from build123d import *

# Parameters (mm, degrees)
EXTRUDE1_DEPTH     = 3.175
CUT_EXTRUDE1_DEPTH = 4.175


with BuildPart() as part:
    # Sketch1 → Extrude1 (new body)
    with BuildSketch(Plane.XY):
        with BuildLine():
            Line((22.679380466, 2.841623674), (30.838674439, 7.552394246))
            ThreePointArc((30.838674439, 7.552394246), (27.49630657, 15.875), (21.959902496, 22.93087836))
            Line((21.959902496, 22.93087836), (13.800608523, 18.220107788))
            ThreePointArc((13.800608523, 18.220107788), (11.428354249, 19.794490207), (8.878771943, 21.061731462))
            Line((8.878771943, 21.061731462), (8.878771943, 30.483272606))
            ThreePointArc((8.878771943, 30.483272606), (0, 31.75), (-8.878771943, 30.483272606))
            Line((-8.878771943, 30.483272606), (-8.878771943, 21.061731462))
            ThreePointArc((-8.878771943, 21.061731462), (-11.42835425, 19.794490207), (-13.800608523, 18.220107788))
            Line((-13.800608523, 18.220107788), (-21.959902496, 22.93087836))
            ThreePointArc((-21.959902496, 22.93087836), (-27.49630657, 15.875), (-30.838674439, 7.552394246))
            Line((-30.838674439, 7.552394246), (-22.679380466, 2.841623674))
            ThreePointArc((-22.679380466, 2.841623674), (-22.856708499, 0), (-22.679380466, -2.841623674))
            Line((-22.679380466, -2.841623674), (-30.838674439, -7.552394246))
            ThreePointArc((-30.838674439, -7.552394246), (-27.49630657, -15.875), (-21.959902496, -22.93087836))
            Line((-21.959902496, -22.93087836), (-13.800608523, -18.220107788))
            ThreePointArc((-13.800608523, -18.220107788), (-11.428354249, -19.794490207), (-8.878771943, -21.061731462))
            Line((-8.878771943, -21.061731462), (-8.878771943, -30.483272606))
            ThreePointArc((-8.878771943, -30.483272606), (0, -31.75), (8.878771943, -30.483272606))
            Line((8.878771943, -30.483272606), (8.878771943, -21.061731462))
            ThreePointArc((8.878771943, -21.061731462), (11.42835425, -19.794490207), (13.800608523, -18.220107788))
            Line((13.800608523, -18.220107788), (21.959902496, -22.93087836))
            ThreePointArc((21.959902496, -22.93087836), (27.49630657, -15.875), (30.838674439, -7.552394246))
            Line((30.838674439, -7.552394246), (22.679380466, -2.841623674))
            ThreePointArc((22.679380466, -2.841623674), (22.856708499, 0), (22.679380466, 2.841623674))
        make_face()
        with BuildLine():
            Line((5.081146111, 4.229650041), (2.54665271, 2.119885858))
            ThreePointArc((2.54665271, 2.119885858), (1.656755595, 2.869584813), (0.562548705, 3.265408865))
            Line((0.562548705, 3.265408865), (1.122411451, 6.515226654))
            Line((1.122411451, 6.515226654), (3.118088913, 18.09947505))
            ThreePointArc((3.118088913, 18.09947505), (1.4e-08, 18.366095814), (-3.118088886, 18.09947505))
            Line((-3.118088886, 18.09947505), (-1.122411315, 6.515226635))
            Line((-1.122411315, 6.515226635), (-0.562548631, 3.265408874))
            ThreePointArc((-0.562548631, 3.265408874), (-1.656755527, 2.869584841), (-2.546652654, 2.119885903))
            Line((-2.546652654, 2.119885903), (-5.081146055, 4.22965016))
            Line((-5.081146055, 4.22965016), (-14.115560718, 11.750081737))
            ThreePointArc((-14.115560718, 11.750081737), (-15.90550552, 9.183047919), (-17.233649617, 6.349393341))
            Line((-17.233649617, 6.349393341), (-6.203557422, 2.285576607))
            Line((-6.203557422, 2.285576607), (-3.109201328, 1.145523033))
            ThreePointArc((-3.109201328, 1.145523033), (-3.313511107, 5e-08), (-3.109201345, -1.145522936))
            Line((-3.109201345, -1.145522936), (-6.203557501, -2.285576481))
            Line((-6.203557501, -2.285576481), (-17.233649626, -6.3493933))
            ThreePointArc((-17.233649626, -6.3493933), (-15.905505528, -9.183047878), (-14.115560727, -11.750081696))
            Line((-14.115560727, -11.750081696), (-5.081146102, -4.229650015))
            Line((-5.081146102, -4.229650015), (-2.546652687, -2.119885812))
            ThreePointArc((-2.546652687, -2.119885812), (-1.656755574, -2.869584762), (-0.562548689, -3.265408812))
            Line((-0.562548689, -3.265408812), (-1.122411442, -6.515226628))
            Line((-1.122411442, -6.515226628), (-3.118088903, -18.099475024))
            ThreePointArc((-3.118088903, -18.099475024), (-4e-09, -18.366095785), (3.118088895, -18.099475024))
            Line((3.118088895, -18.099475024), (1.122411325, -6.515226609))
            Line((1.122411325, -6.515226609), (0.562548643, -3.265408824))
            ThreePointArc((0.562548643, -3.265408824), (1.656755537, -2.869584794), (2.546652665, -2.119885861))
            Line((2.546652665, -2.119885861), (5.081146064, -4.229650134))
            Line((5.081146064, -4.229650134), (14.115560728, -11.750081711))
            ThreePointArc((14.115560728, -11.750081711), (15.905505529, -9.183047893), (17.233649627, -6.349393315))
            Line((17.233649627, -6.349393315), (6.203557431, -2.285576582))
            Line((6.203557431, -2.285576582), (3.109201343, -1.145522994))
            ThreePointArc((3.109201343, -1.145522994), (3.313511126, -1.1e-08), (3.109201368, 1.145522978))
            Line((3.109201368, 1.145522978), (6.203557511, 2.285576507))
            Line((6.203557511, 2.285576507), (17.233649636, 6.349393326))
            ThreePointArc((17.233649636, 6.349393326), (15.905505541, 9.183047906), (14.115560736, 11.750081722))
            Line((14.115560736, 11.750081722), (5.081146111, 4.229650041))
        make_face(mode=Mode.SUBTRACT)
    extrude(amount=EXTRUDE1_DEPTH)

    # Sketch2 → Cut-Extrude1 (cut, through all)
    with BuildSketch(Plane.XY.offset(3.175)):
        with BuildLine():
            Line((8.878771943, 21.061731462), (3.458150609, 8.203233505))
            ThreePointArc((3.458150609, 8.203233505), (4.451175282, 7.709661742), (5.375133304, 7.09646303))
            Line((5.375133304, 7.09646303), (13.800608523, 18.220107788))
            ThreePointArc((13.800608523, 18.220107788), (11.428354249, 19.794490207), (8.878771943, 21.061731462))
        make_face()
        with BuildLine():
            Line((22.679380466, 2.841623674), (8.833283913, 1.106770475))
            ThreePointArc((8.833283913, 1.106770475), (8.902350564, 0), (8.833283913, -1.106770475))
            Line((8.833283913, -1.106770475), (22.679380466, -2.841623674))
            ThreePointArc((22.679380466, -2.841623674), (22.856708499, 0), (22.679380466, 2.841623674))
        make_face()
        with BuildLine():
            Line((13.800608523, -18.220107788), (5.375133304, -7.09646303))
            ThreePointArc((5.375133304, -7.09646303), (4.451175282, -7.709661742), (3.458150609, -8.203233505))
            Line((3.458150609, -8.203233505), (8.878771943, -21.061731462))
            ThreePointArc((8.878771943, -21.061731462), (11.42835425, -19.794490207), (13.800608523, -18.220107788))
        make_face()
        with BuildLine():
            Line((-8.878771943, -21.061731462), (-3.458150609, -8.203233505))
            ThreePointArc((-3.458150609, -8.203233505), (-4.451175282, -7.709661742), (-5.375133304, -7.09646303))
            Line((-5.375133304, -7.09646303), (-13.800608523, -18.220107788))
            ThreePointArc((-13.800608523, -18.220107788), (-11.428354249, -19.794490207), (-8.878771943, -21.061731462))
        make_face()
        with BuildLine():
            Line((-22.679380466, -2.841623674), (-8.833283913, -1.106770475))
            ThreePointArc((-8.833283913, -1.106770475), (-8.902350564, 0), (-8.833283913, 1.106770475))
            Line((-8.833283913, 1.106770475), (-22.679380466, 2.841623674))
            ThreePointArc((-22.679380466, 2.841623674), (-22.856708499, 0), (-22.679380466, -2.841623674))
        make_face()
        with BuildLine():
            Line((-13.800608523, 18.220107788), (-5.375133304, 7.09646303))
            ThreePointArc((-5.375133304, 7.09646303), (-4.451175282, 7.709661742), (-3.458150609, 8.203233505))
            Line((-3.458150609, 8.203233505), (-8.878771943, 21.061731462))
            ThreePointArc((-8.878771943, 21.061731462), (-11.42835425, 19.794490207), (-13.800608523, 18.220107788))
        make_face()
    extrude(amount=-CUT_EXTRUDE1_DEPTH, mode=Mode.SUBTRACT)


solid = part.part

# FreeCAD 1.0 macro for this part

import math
import FreeCAD as App
import Part
import Sketcher

V = App.Vector
Q = App.Units.Quantity

doc = App.newDocument("Part")
body = doc.addObject("PartDesign::Body", "Body")

# Sketch on XY plane
sketch1 = body.newObject("Sketcher::SketchObject", "Sketch")
sketch1.AttachmentSupport = (doc.getObject("XY_Plane"), [""])
sketch1.MapMode = "FlatFace"
sketch1.addGeometry([
    Part.LineSegment(V(22.7, 2.8, 0), V(30.8, 7.6, 0)),  # 0
    Part.ArcOfCircle(Part.Circle(V(0, 0, 0), V(0, 0, 1), 31.8), math.radians(14), math.radians(46)),  # 1
    Part.LineSegment(V(22, 22.9, 0), V(13.8, 18.2, 0)),  # 2
    Part.ArcOfCircle(Part.Circle(V(0, 0, 0), V(0, 0, 1), 22.9), math.radians(52.86), math.radians(67.14)),  # 3
    Part.LineSegment(V(8.9, 21.1, 0), V(8.9, 30.5, 0)),  # 4
    Part.ArcOfCircle(Part.Circle(V(0, 0, 0), V(0, 0, 1), 31.7), math.radians(74), math.radians(106)),  # 5
    Part.LineSegment(V(-8.9, 30.5, 0), V(-8.9, 21.1, 0)),  # 6
    Part.ArcOfCircle(Part.Circle(V(0, 0, 0), V(0, 0, 1), 22.9), math.radians(112.86), math.radians(127.14)),  # 7
    Part.LineSegment(V(-13.8, 18.2, 0), V(-22, 22.9, 0)),  # 8
    Part.ArcOfCircle(Part.Circle(V(0, 0, 0), V(0, 0, 1), 31.8), math.radians(134), math.radians(166)),  # 9
    Part.LineSegment(V(-30.8, 7.6, 0), V(-22.7, 2.8, 0)),  # 10
    Part.ArcOfCircle(Part.Circle(V(0, 0, 0), V(0, 0, 1), 22.9), math.radians(172.86), math.radians(187.14)),  # 11
    Part.LineSegment(V(-22.7, -2.8, 0), V(-30.8, -7.6, 0)),  # 12
    Part.ArcOfCircle(Part.Circle(V(0, 0, 0), V(0, 0, 1), 31.8), math.radians(-166), math.radians(-134)),  # 13
    Part.LineSegment(V(-22, -22.9, 0), V(-13.8, -18.2, 0)),  # 14
    Part.ArcOfCircle(Part.Circle(V(0, 0, 0), V(0, 0, 1), 22.9), math.radians(-127.14), math.radians(-112.86)),  # 15
    Part.LineSegment(V(-8.9, -21.1, 0), V(-8.9, -30.5, 0)),  # 16
    Part.ArcOfCircle(Part.Circle(V(0, 0, 0), V(0, 0, 1), 31.7), math.radians(-106), math.radians(-74)),  # 17
    Part.LineSegment(V(8.9, -30.5, 0), V(8.9, -21.1, 0)),  # 18
    Part.ArcOfCircle(Part.Circle(V(0, 0, 0), V(0, 0, 1), 22.9), math.radians(-67.14), math.radians(-52.86)),  # 19
    Part.LineSegment(V(13.8, -18.2, 0), V(22, -22.9, 0)),  # 20
    Part.ArcOfCircle(Part.Circle(V(0, 0, 0), V(0, 0, 1), 31.8), math.radians(-46), math.radians(-14)),  # 21
    Part.LineSegment(V(30.8, -7.6, 0), V(22.7, -2.8, 0)),  # 22
    Part.ArcOfCircle(Part.Circle(V(0, 0, 0), V(0, 0, 1), 22.9), math.radians(-7.14), math.radians(7.14)),  # 23
    Part.LineSegment(V(2.5, 2.1, 0), V(5.1, 4.2, 0)),  # 24
    Part.LineSegment(V(5.1, 4.2, 0), V(14.1, 11.8, 0)),  # 25
    Part.ArcOfCircle(Part.Circle(V(0, 0, 0), V(0, 0, 1), 18.4), math.radians(20.23), math.radians(39.77)),  # 26
    Part.LineSegment(V(17.2, 6.3, 0), V(6.2, 2.3, 0)),  # 27
    Part.LineSegment(V(6.2, 2.3, 0), V(3.1, 1.1, 0)),  # 28
    Part.ArcOfCircle(Part.Circle(V(0, 0, 0), V(0, 0, 1), 3.3), math.radians(-20), math.radians(20)),  # 29
    Part.LineSegment(V(3.1, -1.1, 0), V(6.2, -2.3, 0)),  # 30
    Part.LineSegment(V(6.2, -2.3, 0), V(17.2, -6.3, 0)),  # 31
    Part.ArcOfCircle(Part.Circle(V(0, 0, 0), V(0, 0, 1), 18.4), math.radians(-39.77), math.radians(-20.23)),  # 32
    Part.LineSegment(V(14.1, -11.8, 0), V(5.1, -4.2, 0)),  # 33
    Part.LineSegment(V(5.1, -4.2, 0), V(2.5, -2.1, 0)),  # 34
    Part.ArcOfCircle(Part.Circle(V(0, 0, 0), V(0, 0, 1), 3.3), math.radians(-80), math.radians(-40)),  # 35
    Part.LineSegment(V(0.6, -3.3, 0), V(1.1, -6.5, 0)),  # 36
    Part.LineSegment(V(1.1, -6.5, 0), V(3.1, -18.1, 0)),  # 37
    Part.ArcOfCircle(Part.Circle(V(0, 0, 0), V(0, 0, 1), 18.4), math.radians(-99.77), math.radians(-80.23)),  # 38
    Part.LineSegment(V(-3.1, -18.1, 0), V(-1.1, -6.5, 0)),  # 39
    Part.LineSegment(V(-1.1, -6.5, 0), V(-0.6, -3.3, 0)),  # 40
    Part.ArcOfCircle(Part.Circle(V(0, 0, 0), V(0, 0, 1), 3.3), math.radians(-140), math.radians(-100)),  # 41
    Part.LineSegment(V(-2.5, -2.1, 0), V(-5.1, -4.2, 0)),  # 42
    Part.LineSegment(V(-5.1, -4.2, 0), V(-14.1, -11.8, 0)),  # 43
    Part.ArcOfCircle(Part.Circle(V(0, 0, 0), V(0, 0, 1), 18.4), math.radians(-159.77), math.radians(-140.23)),  # 44
    Part.LineSegment(V(-17.2, -6.3, 0), V(-6.2, -2.3, 0)),  # 45
    Part.LineSegment(V(-6.2, -2.3, 0), V(-3.1, -1.1, 0)),  # 46
    Part.ArcOfCircle(Part.Circle(V(0, 0, 0), V(0, 0, 1), 3.3), math.radians(160), math.radians(200)),  # 47
    Part.LineSegment(V(-3.1, 1.1, 0), V(-6.2, 2.3, 0)),  # 48
    Part.LineSegment(V(-6.2, 2.3, 0), V(-17.2, 6.3, 0)),  # 49
    Part.ArcOfCircle(Part.Circle(V(0, 0, 0), V(0, 0, 1), 18.4), math.radians(140.23), math.radians(159.77)),  # 50
    Part.LineSegment(V(-14.1, 11.8, 0), V(-5.1, 4.2, 0)),  # 51
    Part.LineSegment(V(-5.1, 4.2, 0), V(-2.5, 2.1, 0)),  # 52
    Part.ArcOfCircle(Part.Circle(V(0, 0, 0), V(0, 0, 1), 3.3), math.radians(100), math.radians(140)),  # 53
    Part.LineSegment(V(-0.6, 3.3, 0), V(-1.1, 6.5, 0)),  # 54
    Part.LineSegment(V(-1.1, 6.5, 0), V(-3.1, 18.1, 0)),  # 55
    Part.ArcOfCircle(Part.Circle(V(0, 0, 0), V(0, 0, 1), 18.4), math.radians(80.23), math.radians(99.77)),  # 56
    Part.LineSegment(V(3.1, 18.1, 0), V(1.1, 6.5, 0)),  # 57
    Part.LineSegment(V(1.1, 6.5, 0), V(0.6, 3.3, 0)),  # 58
    Part.ArcOfCircle(Part.Circle(V(0, 0, 0), V(0, 0, 1), 3.3), math.radians(40), math.radians(80)),  # 59
], False)
sketch1.addConstraint([
    Sketcher.Constraint("Coincident", 0, 2, 1, 1),
    Sketcher.Constraint("Coincident", 1, 2, 2, 1),
    Sketcher.Constraint("Coincident", 2, 2, 3, 1),
    Sketcher.Constraint("Coincident", 3, 2, 4, 1),
    Sketcher.Constraint("Coincident", 4, 2, 5, 1),
    Sketcher.Constraint("Coincident", 5, 2, 6, 1),
    Sketcher.Constraint("Coincident", 6, 2, 7, 1),
    Sketcher.Constraint("Coincident", 7, 2, 8, 1),
    Sketcher.Constraint("Coincident", 8, 2, 9, 1),
    Sketcher.Constraint("Coincident", 9, 2, 10, 1),
    Sketcher.Constraint("Coincident", 10, 2, 11, 1),
    Sketcher.Constraint("Coincident", 11, 2, 12, 1),
    Sketcher.Constraint("Coincident", 12, 2, 13, 1),
    Sketcher.Constraint("Coincident", 13, 2, 14, 1),
    Sketcher.Constraint("Coincident", 14, 2, 15, 1),
    Sketcher.Constraint("Coincident", 15, 2, 16, 1),
    Sketcher.Constraint("Coincident", 16, 2, 17, 1),
    Sketcher.Constraint("Coincident", 17, 2, 18, 1),
    Sketcher.Constraint("Coincident", 18, 2, 19, 1),
    Sketcher.Constraint("Coincident", 19, 2, 20, 1),
    Sketcher.Constraint("Coincident", 20, 2, 21, 1),
    Sketcher.Constraint("Coincident", 21, 2, 22, 1),
    Sketcher.Constraint("Coincident", 22, 2, 23, 1),
    Sketcher.Constraint("Coincident", 23, 2, 0, 1),
    Sketcher.Constraint("Coincident", 24, 2, 25, 1),
    Sketcher.Constraint("Coincident", 25, 2, 26, 2),
    Sketcher.Constraint("Coincident", 26, 1, 27, 1),
    Sketcher.Constraint("Coincident", 27, 2, 28, 1),
    Sketcher.Constraint("Coincident", 28, 2, 29, 2),
    Sketcher.Constraint("Coincident", 29, 1, 30, 1),
    Sketcher.Constraint("Coincident", 30, 2, 31, 1),
    Sketcher.Constraint("Coincident", 31, 2, 32, 2),
    Sketcher.Constraint("Coincident", 32, 1, 33, 1),
    Sketcher.Constraint("Coincident", 33, 2, 34, 1),
    Sketcher.Constraint("Coincident", 34, 2, 35, 2),
    Sketcher.Constraint("Coincident", 35, 1, 36, 1),
    Sketcher.Constraint("Coincident", 36, 2, 37, 1),
    Sketcher.Constraint("Coincident", 37, 2, 38, 2),
    Sketcher.Constraint("Coincident", 38, 1, 39, 1),
    Sketcher.Constraint("Coincident", 39, 2, 40, 1),
    Sketcher.Constraint("Coincident", 40, 2, 41, 2),
    Sketcher.Constraint("Coincident", 41, 1, 42, 1),
    Sketcher.Constraint("Coincident", 42, 2, 43, 1),
    Sketcher.Constraint("Coincident", 43, 2, 44, 2),
    Sketcher.Constraint("Coincident", 44, 1, 45, 1),
    Sketcher.Constraint("Coincident", 45, 2, 46, 1),
    Sketcher.Constraint("Coincident", 46, 2, 47, 2),
    Sketcher.Constraint("Coincident", 47, 1, 48, 1),
    Sketcher.Constraint("Coincident", 48, 2, 49, 1),
    Sketcher.Constraint("Coincident", 49, 2, 50, 2),
    Sketcher.Constraint("Coincident", 50, 1, 51, 1),
    Sketcher.Constraint("Coincident", 51, 2, 52, 1),
    Sketcher.Constraint("Coincident", 52, 2, 53, 2),
    Sketcher.Constraint("Coincident", 53, 1, 54, 1),
    Sketcher.Constraint("Coincident", 54, 2, 55, 1),
    Sketcher.Constraint("Coincident", 55, 2, 56, 2),
    Sketcher.Constraint("Coincident", 56, 1, 57, 1),
    Sketcher.Constraint("Coincident", 57, 2, 58, 1),
    Sketcher.Constraint("Coincident", 58, 2, 59, 2),
    Sketcher.Constraint("Coincident", 59, 1, 24, 1),
    Sketcher.Constraint("Vertical", 4),
    Sketcher.Constraint("Vertical", 6),
    Sketcher.Constraint("Vertical", 16),
    Sketcher.Constraint("Vertical", 18),
    Sketcher.Constraint("Coincident", 1, 3, -1, 1),
    Sketcher.Constraint("Coincident", 3, 3, -1, 1),
    Sketcher.Constraint("Coincident", 5, 3, -1, 1),
    Sketcher.Constraint("Coincident", 7, 3, -1, 1),
    Sketcher.Constraint("Coincident", 9, 3, -1, 1),
    Sketcher.Constraint("Coincident", 11, 3, -1, 1),
    Sketcher.Constraint("Coincident", 13, 3, -1, 1),
    Sketcher.Constraint("Coincident", 15, 3, -1, 1),
    Sketcher.Constraint("Coincident", 17, 3, -1, 1),
    Sketcher.Constraint("Coincident", 19, 3, -1, 1),
    Sketcher.Constraint("Coincident", 21, 3, -1, 1),
    Sketcher.Constraint("Coincident", 23, 3, -1, 1),
    Sketcher.Constraint("Coincident", 26, 3, -1, 1),
    Sketcher.Constraint("Coincident", 29, 3, -1, 1),
    Sketcher.Constraint("Coincident", 32, 3, -1, 1),
    Sketcher.Constraint("Coincident", 35, 3, -1, 1),
    Sketcher.Constraint("Coincident", 38, 3, -1, 1),
    Sketcher.Constraint("Coincident", 41, 3, -1, 1),
    Sketcher.Constraint("Coincident", 44, 3, -1, 1),
    Sketcher.Constraint("Coincident", 47, 3, -1, 1),
    Sketcher.Constraint("Coincident", 50, 3, -1, 1),
    Sketcher.Constraint("Coincident", 53, 3, -1, 1),
    Sketcher.Constraint("Coincident", 56, 3, -1, 1),
    Sketcher.Constraint("Coincident", 59, 3, -1, 1),
    Sketcher.Constraint("Equal", 1, 5),
    Sketcher.Constraint("Equal", 3, 7),
    Sketcher.Constraint("Equal", 5, 9),
    Sketcher.Constraint("Equal", 7, 11),
    Sketcher.Constraint("Equal", 9, 13),
    Sketcher.Constraint("Equal", 11, 15),
    Sketcher.Constraint("Equal", 13, 17),
    Sketcher.Constraint("Equal", 15, 19),
    Sketcher.Constraint("Equal", 17, 21),
    Sketcher.Constraint("Equal", 19, 23),
    Sketcher.Constraint("Equal", 26, 32),
    Sketcher.Constraint("Equal", 29, 35),
    Sketcher.Constraint("Equal", 32, 38),
    Sketcher.Constraint("Equal", 35, 41),
    Sketcher.Constraint("Equal", 38, 44),
    Sketcher.Constraint("Equal", 41, 47),
    Sketcher.Constraint("Equal", 44, 50),
    Sketcher.Constraint("Equal", 47, 53),
    Sketcher.Constraint("Equal", 50, 56),
    Sketcher.Constraint("Equal", 53, 59),
    Sketcher.Constraint("Symmetric", 24, 2, 42, 2, -1, 1),
    Sketcher.Constraint("Symmetric", 27, 2, 45, 2, -1, 1),
    Sketcher.Constraint("Symmetric", 30, 2, 48, 2, -1, 1),
    Sketcher.Constraint("Symmetric", 33, 2, 51, 2, -1, 1),
    Sketcher.Constraint("Symmetric", 36, 2, 54, 2, -1, 1),
    Sketcher.Constraint("Symmetric", 39, 2, 57, 2, -1, 1),
    Sketcher.Constraint("Symmetric", 36, 2, 39, 2, -2),
    Sketcher.Constraint("Symmetric", 33, 2, 42, 2, -2),
    Sketcher.Constraint("Symmetric", 30, 2, 45, 2, -2),
    Sketcher.Constraint("Parallel", 0, 2),
    Sketcher.Constraint("Parallel", 8, 10),
    Sketcher.Constraint("Parallel", 2, 12),
    Sketcher.Constraint("Parallel", 12, 14),
    Sketcher.Constraint("Parallel", 10, 20),
    Sketcher.Constraint("Parallel", 20, 22),
    Sketcher.Constraint("Parallel", 24, 25),
    Sketcher.Constraint("Parallel", 27, 28),
    Sketcher.Constraint("Parallel", 30, 31),
    Sketcher.Constraint("Parallel", 33, 34),
    Sketcher.Constraint("Parallel", 36, 37),
    Sketcher.Constraint("Parallel", 39, 40),
    Sketcher.Constraint("Parallel", 25, 42),
    Sketcher.Constraint("Parallel", 42, 43),
    Sketcher.Constraint("Parallel", 28, 45),
    Sketcher.Constraint("Parallel", 45, 46),
    Sketcher.Constraint("Parallel", 31, 48),
    Sketcher.Constraint("Parallel", 48, 49),
    Sketcher.Constraint("Parallel", 34, 51),
    Sketcher.Constraint("Parallel", 51, 52),
    Sketcher.Constraint("Parallel", 37, 54),
    Sketcher.Constraint("Parallel", 54, 55),
    Sketcher.Constraint("Parallel", 40, 57),
    Sketcher.Constraint("Parallel", 57, 58),
    Sketcher.Constraint("Horizontal", 4, 2, 5, 2),
    Sketcher.Constraint("Horizontal", 2, 2, 7, 2),
    Sketcher.Constraint("Horizontal", 1, 2, 8, 2),
    Sketcher.Constraint("Horizontal", 0, 2, 9, 2),
    Sketcher.Constraint("Horizontal", 16, 2, 17, 2),
    Sketcher.Constraint("Horizontal", 14, 2, 19, 2),
    Sketcher.Constraint("Horizontal", 12, 2, 21, 2),
    Sketcher.Constraint("Horizontal", 37, 2, 38, 1),
    Sketcher.Constraint("Horizontal", 34, 2, 41, 1),
    Sketcher.Constraint("Horizontal", 31, 2, 44, 1),
    Sketcher.Constraint("Vertical", 10, 2, 11, 2),
    Sketcher.Constraint("Vertical", 8, 2, 13, 2),
    Sketcher.Constraint("Vertical", 6, 2, 15, 2),
    Sketcher.Constraint("Equal", 0, 2),
    Sketcher.Constraint("Equal", 25, 27),
    Sketcher.Constraint("Equal", 34, 36),
    Sketcher.Constraint("Radius", 1, Q("1.25 in")),
    Sketcher.Constraint("Angle", 0, Q("30 deg")),
    Sketcher.Constraint("Radius", 3, 22.856709),
    Sketcher.Constraint("Radius", 29, 3.313511),
    Sketcher.Constraint("Radius", 26, 18.366096),
    Sketcher.Constraint("DistanceY", 4, 1, 4, 2, 9.421541),
    Sketcher.Constraint("DistanceX", -1, 1, 28, 2, 3.109201),
    Sketcher.Constraint("Distance", 0, 9.421541),
    Sketcher.Constraint("Distance", 24, 3.29769),
    Sketcher.Constraint("DistanceY", -1, 1, 24, 2, 4.22965),
    Sketcher.Constraint("DistanceX", -1, 1, 25, 2, 14.115561),
    Sketcher.Constraint("DistanceX", -1, 1, 26, 1, 17.23365),
    Sketcher.Constraint("DistanceX", -1, 1, 35, 1, 0.562549),
    Sketcher.Constraint("DistanceX", -1, 1, 36, 2, 1.122411),
])
pad1 = body.newObject("PartDesign::Pad", "Pad")
pad1.Profile = sketch1
pad1.Length = Q("0.125 in")

# Sketch on XY plane
sketch2 = body.newObject("Sketcher::SketchObject", "Sketch001")
sketch2.AttachmentSupport = (doc.getObject("XY_Plane"), [""])
sketch2.MapMode = "FlatFace"
sketch2.AttachmentOffset = App.Placement(V(0, 0, 0.125 * 25.4), App.Rotation())
sketch2.addGeometry([
    Part.LineSegment(V(8.9, 21.1, 0), V(3.5, 8.2, 0)),  # 0
    Part.ArcOfCircle(Part.Circle(V(0, 0, 0), V(0, 0, 1), 8.9), math.radians(52.86), math.radians(67.14)),  # 1
    Part.LineSegment(V(5.4, 7.1, 0), V(13.8, 18.2, 0)),  # 2
    Part.ArcOfCircle(Part.Circle(V(0, 0, 0), V(0, 0, 1), 22.9), math.radians(52.86), math.radians(67.14)),  # 3
    Part.LineSegment(V(22.7, 2.8, 0), V(8.8, 1.1, 0)),  # 4
    Part.ArcOfCircle(Part.Circle(V(0, 0, 0), V(0, 0, 1), 8.9), math.radians(-7.14), math.radians(7.14)),  # 5
    Part.LineSegment(V(8.8, -1.1, 0), V(22.7, -2.8, 0)),  # 6
    Part.ArcOfCircle(Part.Circle(V(0, 0, 0), V(0, 0, 1), 22.9), math.radians(-7.14), math.radians(7.14)),  # 7
    Part.LineSegment(V(13.8, -18.2, 0), V(5.4, -7.1, 0)),  # 8
    Part.ArcOfCircle(Part.Circle(V(0, 0, 0), V(0, 0, 1), 8.9), math.radians(-67.14), math.radians(-52.86)),  # 9
    Part.LineSegment(V(3.5, -8.2, 0), V(8.9, -21.1, 0)),  # 10
    Part.ArcOfCircle(Part.Circle(V(0, 0, 0), V(0, 0, 1), 22.9), math.radians(-67.14), math.radians(-52.86)),  # 11
    Part.LineSegment(V(-8.9, -21.1, 0), V(-3.5, -8.2, 0)),  # 12
    Part.ArcOfCircle(Part.Circle(V(0, 0, 0), V(0, 0, 1), 8.9), math.radians(-127.14), math.radians(-112.86)),  # 13
    Part.LineSegment(V(-5.4, -7.1, 0), V(-13.8, -18.2, 0)),  # 14
    Part.ArcOfCircle(Part.Circle(V(0, 0, 0), V(0, 0, 1), 22.9), math.radians(-127.14), math.radians(-112.86)),  # 15
    Part.LineSegment(V(-22.7, -2.8, 0), V(-8.8, -1.1, 0)),  # 16
    Part.ArcOfCircle(Part.Circle(V(0, 0, 0), V(0, 0, 1), 8.9), math.radians(172.86), math.radians(187.14)),  # 17
    Part.LineSegment(V(-8.8, 1.1, 0), V(-22.7, 2.8, 0)),  # 18
    Part.ArcOfCircle(Part.Circle(V(0, 0, 0), V(0, 0, 1), 22.9), math.radians(172.86), math.radians(187.14)),  # 19
    Part.LineSegment(V(-13.8, 18.2, 0), V(-5.4, 7.1, 0)),  # 20
    Part.ArcOfCircle(Part.Circle(V(0, 0, 0), V(0, 0, 1), 8.9), math.radians(112.86), math.radians(127.14)),  # 21
    Part.LineSegment(V(-3.5, 8.2, 0), V(-8.9, 21.1, 0)),  # 22
    Part.ArcOfCircle(Part.Circle(V(0, 0, 0), V(0, 0, 1), 22.9), math.radians(112.86), math.radians(127.14)),  # 23
], False)
sketch2.addConstraint([
    Sketcher.Constraint("Coincident", 0, 2, 1, 2),
    Sketcher.Constraint("Coincident", 1, 1, 2, 1),
    Sketcher.Constraint("Coincident", 2, 2, 3, 1),
    Sketcher.Constraint("Coincident", 3, 2, 0, 1),
    Sketcher.Constraint("Coincident", 4, 2, 5, 2),
    Sketcher.Constraint("Coincident", 5, 1, 6, 1),
    Sketcher.Constraint("Coincident", 6, 2, 7, 1),
    Sketcher.Constraint("Coincident", 7, 2, 4, 1),
    Sketcher.Constraint("Coincident", 8, 2, 9, 2),
    Sketcher.Constraint("Coincident", 9, 1, 10, 1),
    Sketcher.Constraint("Coincident", 10, 2, 11, 1),
    Sketcher.Constraint("Coincident", 11, 2, 8, 1),
    Sketcher.Constraint("Coincident", 12, 2, 13, 2),
    Sketcher.Constraint("Coincident", 13, 1, 14, 1),
    Sketcher.Constraint("Coincident", 14, 2, 15, 1),
    Sketcher.Constraint("Coincident", 15, 2, 12, 1),
    Sketcher.Constraint("Coincident", 16, 2, 17, 2),
    Sketcher.Constraint("Coincident", 17, 1, 18, 1),
    Sketcher.Constraint("Coincident", 18, 2, 19, 1),
    Sketcher.Constraint("Coincident", 19, 2, 16, 1),
    Sketcher.Constraint("Coincident", 20, 2, 21, 2),
    Sketcher.Constraint("Coincident", 21, 1, 22, 1),
    Sketcher.Constraint("Coincident", 22, 2, 23, 1),
    Sketcher.Constraint("Coincident", 23, 2, 20, 1),
    Sketcher.Constraint("Coincident", 1, 3, -1, 1),
    Sketcher.Constraint("Coincident", 3, 3, -1, 1),
    Sketcher.Constraint("Coincident", 5, 3, -1, 1),
    Sketcher.Constraint("Coincident", 7, 3, -1, 1),
    Sketcher.Constraint("Coincident", 9, 3, -1, 1),
    Sketcher.Constraint("Coincident", 11, 3, -1, 1),
    Sketcher.Constraint("Coincident", 13, 3, -1, 1),
    Sketcher.Constraint("Coincident", 15, 3, -1, 1),
    Sketcher.Constraint("Coincident", 17, 3, -1, 1),
    Sketcher.Constraint("Coincident", 19, 3, -1, 1),
    Sketcher.Constraint("Coincident", 21, 3, -1, 1),
    Sketcher.Constraint("Coincident", 23, 3, -1, 1),
    Sketcher.Constraint("Equal", 1, 5),
    Sketcher.Constraint("Equal", 3, 7),
    Sketcher.Constraint("Equal", 5, 9),
    Sketcher.Constraint("Equal", 7, 11),
    Sketcher.Constraint("Equal", 9, 13),
    Sketcher.Constraint("Equal", 11, 15),
    Sketcher.Constraint("Equal", 13, 17),
    Sketcher.Constraint("Equal", 15, 19),
    Sketcher.Constraint("Equal", 17, 21),
    Sketcher.Constraint("Equal", 19, 23),
    Sketcher.Constraint("Parallel", 0, 12),
    Sketcher.Constraint("Parallel", 2, 14),
    Sketcher.Constraint("Parallel", 4, 16),
    Sketcher.Constraint("Parallel", 6, 18),
    Sketcher.Constraint("Parallel", 8, 20),
    Sketcher.Constraint("Parallel", 10, 22),
    Sketcher.Constraint("Horizontal", 9, 1, 12, 2),
    Sketcher.Constraint("Horizontal", 8, 2, 13, 1),
    Sketcher.Constraint("Horizontal", 11, 2, 14, 2),
    Sketcher.Constraint("Horizontal", 10, 2, 15, 2),
    Sketcher.Constraint("Horizontal", 5, 1, 16, 2),
    Sketcher.Constraint("Horizontal", 4, 2, 17, 1),
    Sketcher.Constraint("Horizontal", 7, 2, 18, 2),
    Sketcher.Constraint("Horizontal", 1, 1, 20, 2),
    Sketcher.Constraint("Horizontal", 0, 2, 21, 1),
    Sketcher.Constraint("Vertical", 4, 2, 5, 1),
    Sketcher.Constraint("Vertical", 1, 1, 8, 2),
    Sketcher.Constraint("Vertical", 0, 2, 9, 1),
    Sketcher.Constraint("Radius", 1, 8.902351),
    Sketcher.Constraint("Radius", 3, 22.856709),
    Sketcher.Constraint("DistanceY", 10, 2, 4, 2, 22.168502),
    Sketcher.Constraint("DistanceX", 12, 2, 9, 1, 6.916301),
    Sketcher.Constraint("DistanceX", -1, 1, 2, 2, 13.800609),
    Sketcher.Constraint("DistanceX", -1, 1, 3, 2, 8.878772),
    Sketcher.Constraint("DistanceX", -1, 1, 6, 2, 22.67938),
    Sketcher.Constraint("DistanceY", 1, 1, 0, 2, 1.10677),
])
pocket1 = body.newObject("PartDesign::Pocket", "Pocket")
pocket1.Profile = sketch2
pocket1.Type = "ThroughAll"

doc.recompute()
